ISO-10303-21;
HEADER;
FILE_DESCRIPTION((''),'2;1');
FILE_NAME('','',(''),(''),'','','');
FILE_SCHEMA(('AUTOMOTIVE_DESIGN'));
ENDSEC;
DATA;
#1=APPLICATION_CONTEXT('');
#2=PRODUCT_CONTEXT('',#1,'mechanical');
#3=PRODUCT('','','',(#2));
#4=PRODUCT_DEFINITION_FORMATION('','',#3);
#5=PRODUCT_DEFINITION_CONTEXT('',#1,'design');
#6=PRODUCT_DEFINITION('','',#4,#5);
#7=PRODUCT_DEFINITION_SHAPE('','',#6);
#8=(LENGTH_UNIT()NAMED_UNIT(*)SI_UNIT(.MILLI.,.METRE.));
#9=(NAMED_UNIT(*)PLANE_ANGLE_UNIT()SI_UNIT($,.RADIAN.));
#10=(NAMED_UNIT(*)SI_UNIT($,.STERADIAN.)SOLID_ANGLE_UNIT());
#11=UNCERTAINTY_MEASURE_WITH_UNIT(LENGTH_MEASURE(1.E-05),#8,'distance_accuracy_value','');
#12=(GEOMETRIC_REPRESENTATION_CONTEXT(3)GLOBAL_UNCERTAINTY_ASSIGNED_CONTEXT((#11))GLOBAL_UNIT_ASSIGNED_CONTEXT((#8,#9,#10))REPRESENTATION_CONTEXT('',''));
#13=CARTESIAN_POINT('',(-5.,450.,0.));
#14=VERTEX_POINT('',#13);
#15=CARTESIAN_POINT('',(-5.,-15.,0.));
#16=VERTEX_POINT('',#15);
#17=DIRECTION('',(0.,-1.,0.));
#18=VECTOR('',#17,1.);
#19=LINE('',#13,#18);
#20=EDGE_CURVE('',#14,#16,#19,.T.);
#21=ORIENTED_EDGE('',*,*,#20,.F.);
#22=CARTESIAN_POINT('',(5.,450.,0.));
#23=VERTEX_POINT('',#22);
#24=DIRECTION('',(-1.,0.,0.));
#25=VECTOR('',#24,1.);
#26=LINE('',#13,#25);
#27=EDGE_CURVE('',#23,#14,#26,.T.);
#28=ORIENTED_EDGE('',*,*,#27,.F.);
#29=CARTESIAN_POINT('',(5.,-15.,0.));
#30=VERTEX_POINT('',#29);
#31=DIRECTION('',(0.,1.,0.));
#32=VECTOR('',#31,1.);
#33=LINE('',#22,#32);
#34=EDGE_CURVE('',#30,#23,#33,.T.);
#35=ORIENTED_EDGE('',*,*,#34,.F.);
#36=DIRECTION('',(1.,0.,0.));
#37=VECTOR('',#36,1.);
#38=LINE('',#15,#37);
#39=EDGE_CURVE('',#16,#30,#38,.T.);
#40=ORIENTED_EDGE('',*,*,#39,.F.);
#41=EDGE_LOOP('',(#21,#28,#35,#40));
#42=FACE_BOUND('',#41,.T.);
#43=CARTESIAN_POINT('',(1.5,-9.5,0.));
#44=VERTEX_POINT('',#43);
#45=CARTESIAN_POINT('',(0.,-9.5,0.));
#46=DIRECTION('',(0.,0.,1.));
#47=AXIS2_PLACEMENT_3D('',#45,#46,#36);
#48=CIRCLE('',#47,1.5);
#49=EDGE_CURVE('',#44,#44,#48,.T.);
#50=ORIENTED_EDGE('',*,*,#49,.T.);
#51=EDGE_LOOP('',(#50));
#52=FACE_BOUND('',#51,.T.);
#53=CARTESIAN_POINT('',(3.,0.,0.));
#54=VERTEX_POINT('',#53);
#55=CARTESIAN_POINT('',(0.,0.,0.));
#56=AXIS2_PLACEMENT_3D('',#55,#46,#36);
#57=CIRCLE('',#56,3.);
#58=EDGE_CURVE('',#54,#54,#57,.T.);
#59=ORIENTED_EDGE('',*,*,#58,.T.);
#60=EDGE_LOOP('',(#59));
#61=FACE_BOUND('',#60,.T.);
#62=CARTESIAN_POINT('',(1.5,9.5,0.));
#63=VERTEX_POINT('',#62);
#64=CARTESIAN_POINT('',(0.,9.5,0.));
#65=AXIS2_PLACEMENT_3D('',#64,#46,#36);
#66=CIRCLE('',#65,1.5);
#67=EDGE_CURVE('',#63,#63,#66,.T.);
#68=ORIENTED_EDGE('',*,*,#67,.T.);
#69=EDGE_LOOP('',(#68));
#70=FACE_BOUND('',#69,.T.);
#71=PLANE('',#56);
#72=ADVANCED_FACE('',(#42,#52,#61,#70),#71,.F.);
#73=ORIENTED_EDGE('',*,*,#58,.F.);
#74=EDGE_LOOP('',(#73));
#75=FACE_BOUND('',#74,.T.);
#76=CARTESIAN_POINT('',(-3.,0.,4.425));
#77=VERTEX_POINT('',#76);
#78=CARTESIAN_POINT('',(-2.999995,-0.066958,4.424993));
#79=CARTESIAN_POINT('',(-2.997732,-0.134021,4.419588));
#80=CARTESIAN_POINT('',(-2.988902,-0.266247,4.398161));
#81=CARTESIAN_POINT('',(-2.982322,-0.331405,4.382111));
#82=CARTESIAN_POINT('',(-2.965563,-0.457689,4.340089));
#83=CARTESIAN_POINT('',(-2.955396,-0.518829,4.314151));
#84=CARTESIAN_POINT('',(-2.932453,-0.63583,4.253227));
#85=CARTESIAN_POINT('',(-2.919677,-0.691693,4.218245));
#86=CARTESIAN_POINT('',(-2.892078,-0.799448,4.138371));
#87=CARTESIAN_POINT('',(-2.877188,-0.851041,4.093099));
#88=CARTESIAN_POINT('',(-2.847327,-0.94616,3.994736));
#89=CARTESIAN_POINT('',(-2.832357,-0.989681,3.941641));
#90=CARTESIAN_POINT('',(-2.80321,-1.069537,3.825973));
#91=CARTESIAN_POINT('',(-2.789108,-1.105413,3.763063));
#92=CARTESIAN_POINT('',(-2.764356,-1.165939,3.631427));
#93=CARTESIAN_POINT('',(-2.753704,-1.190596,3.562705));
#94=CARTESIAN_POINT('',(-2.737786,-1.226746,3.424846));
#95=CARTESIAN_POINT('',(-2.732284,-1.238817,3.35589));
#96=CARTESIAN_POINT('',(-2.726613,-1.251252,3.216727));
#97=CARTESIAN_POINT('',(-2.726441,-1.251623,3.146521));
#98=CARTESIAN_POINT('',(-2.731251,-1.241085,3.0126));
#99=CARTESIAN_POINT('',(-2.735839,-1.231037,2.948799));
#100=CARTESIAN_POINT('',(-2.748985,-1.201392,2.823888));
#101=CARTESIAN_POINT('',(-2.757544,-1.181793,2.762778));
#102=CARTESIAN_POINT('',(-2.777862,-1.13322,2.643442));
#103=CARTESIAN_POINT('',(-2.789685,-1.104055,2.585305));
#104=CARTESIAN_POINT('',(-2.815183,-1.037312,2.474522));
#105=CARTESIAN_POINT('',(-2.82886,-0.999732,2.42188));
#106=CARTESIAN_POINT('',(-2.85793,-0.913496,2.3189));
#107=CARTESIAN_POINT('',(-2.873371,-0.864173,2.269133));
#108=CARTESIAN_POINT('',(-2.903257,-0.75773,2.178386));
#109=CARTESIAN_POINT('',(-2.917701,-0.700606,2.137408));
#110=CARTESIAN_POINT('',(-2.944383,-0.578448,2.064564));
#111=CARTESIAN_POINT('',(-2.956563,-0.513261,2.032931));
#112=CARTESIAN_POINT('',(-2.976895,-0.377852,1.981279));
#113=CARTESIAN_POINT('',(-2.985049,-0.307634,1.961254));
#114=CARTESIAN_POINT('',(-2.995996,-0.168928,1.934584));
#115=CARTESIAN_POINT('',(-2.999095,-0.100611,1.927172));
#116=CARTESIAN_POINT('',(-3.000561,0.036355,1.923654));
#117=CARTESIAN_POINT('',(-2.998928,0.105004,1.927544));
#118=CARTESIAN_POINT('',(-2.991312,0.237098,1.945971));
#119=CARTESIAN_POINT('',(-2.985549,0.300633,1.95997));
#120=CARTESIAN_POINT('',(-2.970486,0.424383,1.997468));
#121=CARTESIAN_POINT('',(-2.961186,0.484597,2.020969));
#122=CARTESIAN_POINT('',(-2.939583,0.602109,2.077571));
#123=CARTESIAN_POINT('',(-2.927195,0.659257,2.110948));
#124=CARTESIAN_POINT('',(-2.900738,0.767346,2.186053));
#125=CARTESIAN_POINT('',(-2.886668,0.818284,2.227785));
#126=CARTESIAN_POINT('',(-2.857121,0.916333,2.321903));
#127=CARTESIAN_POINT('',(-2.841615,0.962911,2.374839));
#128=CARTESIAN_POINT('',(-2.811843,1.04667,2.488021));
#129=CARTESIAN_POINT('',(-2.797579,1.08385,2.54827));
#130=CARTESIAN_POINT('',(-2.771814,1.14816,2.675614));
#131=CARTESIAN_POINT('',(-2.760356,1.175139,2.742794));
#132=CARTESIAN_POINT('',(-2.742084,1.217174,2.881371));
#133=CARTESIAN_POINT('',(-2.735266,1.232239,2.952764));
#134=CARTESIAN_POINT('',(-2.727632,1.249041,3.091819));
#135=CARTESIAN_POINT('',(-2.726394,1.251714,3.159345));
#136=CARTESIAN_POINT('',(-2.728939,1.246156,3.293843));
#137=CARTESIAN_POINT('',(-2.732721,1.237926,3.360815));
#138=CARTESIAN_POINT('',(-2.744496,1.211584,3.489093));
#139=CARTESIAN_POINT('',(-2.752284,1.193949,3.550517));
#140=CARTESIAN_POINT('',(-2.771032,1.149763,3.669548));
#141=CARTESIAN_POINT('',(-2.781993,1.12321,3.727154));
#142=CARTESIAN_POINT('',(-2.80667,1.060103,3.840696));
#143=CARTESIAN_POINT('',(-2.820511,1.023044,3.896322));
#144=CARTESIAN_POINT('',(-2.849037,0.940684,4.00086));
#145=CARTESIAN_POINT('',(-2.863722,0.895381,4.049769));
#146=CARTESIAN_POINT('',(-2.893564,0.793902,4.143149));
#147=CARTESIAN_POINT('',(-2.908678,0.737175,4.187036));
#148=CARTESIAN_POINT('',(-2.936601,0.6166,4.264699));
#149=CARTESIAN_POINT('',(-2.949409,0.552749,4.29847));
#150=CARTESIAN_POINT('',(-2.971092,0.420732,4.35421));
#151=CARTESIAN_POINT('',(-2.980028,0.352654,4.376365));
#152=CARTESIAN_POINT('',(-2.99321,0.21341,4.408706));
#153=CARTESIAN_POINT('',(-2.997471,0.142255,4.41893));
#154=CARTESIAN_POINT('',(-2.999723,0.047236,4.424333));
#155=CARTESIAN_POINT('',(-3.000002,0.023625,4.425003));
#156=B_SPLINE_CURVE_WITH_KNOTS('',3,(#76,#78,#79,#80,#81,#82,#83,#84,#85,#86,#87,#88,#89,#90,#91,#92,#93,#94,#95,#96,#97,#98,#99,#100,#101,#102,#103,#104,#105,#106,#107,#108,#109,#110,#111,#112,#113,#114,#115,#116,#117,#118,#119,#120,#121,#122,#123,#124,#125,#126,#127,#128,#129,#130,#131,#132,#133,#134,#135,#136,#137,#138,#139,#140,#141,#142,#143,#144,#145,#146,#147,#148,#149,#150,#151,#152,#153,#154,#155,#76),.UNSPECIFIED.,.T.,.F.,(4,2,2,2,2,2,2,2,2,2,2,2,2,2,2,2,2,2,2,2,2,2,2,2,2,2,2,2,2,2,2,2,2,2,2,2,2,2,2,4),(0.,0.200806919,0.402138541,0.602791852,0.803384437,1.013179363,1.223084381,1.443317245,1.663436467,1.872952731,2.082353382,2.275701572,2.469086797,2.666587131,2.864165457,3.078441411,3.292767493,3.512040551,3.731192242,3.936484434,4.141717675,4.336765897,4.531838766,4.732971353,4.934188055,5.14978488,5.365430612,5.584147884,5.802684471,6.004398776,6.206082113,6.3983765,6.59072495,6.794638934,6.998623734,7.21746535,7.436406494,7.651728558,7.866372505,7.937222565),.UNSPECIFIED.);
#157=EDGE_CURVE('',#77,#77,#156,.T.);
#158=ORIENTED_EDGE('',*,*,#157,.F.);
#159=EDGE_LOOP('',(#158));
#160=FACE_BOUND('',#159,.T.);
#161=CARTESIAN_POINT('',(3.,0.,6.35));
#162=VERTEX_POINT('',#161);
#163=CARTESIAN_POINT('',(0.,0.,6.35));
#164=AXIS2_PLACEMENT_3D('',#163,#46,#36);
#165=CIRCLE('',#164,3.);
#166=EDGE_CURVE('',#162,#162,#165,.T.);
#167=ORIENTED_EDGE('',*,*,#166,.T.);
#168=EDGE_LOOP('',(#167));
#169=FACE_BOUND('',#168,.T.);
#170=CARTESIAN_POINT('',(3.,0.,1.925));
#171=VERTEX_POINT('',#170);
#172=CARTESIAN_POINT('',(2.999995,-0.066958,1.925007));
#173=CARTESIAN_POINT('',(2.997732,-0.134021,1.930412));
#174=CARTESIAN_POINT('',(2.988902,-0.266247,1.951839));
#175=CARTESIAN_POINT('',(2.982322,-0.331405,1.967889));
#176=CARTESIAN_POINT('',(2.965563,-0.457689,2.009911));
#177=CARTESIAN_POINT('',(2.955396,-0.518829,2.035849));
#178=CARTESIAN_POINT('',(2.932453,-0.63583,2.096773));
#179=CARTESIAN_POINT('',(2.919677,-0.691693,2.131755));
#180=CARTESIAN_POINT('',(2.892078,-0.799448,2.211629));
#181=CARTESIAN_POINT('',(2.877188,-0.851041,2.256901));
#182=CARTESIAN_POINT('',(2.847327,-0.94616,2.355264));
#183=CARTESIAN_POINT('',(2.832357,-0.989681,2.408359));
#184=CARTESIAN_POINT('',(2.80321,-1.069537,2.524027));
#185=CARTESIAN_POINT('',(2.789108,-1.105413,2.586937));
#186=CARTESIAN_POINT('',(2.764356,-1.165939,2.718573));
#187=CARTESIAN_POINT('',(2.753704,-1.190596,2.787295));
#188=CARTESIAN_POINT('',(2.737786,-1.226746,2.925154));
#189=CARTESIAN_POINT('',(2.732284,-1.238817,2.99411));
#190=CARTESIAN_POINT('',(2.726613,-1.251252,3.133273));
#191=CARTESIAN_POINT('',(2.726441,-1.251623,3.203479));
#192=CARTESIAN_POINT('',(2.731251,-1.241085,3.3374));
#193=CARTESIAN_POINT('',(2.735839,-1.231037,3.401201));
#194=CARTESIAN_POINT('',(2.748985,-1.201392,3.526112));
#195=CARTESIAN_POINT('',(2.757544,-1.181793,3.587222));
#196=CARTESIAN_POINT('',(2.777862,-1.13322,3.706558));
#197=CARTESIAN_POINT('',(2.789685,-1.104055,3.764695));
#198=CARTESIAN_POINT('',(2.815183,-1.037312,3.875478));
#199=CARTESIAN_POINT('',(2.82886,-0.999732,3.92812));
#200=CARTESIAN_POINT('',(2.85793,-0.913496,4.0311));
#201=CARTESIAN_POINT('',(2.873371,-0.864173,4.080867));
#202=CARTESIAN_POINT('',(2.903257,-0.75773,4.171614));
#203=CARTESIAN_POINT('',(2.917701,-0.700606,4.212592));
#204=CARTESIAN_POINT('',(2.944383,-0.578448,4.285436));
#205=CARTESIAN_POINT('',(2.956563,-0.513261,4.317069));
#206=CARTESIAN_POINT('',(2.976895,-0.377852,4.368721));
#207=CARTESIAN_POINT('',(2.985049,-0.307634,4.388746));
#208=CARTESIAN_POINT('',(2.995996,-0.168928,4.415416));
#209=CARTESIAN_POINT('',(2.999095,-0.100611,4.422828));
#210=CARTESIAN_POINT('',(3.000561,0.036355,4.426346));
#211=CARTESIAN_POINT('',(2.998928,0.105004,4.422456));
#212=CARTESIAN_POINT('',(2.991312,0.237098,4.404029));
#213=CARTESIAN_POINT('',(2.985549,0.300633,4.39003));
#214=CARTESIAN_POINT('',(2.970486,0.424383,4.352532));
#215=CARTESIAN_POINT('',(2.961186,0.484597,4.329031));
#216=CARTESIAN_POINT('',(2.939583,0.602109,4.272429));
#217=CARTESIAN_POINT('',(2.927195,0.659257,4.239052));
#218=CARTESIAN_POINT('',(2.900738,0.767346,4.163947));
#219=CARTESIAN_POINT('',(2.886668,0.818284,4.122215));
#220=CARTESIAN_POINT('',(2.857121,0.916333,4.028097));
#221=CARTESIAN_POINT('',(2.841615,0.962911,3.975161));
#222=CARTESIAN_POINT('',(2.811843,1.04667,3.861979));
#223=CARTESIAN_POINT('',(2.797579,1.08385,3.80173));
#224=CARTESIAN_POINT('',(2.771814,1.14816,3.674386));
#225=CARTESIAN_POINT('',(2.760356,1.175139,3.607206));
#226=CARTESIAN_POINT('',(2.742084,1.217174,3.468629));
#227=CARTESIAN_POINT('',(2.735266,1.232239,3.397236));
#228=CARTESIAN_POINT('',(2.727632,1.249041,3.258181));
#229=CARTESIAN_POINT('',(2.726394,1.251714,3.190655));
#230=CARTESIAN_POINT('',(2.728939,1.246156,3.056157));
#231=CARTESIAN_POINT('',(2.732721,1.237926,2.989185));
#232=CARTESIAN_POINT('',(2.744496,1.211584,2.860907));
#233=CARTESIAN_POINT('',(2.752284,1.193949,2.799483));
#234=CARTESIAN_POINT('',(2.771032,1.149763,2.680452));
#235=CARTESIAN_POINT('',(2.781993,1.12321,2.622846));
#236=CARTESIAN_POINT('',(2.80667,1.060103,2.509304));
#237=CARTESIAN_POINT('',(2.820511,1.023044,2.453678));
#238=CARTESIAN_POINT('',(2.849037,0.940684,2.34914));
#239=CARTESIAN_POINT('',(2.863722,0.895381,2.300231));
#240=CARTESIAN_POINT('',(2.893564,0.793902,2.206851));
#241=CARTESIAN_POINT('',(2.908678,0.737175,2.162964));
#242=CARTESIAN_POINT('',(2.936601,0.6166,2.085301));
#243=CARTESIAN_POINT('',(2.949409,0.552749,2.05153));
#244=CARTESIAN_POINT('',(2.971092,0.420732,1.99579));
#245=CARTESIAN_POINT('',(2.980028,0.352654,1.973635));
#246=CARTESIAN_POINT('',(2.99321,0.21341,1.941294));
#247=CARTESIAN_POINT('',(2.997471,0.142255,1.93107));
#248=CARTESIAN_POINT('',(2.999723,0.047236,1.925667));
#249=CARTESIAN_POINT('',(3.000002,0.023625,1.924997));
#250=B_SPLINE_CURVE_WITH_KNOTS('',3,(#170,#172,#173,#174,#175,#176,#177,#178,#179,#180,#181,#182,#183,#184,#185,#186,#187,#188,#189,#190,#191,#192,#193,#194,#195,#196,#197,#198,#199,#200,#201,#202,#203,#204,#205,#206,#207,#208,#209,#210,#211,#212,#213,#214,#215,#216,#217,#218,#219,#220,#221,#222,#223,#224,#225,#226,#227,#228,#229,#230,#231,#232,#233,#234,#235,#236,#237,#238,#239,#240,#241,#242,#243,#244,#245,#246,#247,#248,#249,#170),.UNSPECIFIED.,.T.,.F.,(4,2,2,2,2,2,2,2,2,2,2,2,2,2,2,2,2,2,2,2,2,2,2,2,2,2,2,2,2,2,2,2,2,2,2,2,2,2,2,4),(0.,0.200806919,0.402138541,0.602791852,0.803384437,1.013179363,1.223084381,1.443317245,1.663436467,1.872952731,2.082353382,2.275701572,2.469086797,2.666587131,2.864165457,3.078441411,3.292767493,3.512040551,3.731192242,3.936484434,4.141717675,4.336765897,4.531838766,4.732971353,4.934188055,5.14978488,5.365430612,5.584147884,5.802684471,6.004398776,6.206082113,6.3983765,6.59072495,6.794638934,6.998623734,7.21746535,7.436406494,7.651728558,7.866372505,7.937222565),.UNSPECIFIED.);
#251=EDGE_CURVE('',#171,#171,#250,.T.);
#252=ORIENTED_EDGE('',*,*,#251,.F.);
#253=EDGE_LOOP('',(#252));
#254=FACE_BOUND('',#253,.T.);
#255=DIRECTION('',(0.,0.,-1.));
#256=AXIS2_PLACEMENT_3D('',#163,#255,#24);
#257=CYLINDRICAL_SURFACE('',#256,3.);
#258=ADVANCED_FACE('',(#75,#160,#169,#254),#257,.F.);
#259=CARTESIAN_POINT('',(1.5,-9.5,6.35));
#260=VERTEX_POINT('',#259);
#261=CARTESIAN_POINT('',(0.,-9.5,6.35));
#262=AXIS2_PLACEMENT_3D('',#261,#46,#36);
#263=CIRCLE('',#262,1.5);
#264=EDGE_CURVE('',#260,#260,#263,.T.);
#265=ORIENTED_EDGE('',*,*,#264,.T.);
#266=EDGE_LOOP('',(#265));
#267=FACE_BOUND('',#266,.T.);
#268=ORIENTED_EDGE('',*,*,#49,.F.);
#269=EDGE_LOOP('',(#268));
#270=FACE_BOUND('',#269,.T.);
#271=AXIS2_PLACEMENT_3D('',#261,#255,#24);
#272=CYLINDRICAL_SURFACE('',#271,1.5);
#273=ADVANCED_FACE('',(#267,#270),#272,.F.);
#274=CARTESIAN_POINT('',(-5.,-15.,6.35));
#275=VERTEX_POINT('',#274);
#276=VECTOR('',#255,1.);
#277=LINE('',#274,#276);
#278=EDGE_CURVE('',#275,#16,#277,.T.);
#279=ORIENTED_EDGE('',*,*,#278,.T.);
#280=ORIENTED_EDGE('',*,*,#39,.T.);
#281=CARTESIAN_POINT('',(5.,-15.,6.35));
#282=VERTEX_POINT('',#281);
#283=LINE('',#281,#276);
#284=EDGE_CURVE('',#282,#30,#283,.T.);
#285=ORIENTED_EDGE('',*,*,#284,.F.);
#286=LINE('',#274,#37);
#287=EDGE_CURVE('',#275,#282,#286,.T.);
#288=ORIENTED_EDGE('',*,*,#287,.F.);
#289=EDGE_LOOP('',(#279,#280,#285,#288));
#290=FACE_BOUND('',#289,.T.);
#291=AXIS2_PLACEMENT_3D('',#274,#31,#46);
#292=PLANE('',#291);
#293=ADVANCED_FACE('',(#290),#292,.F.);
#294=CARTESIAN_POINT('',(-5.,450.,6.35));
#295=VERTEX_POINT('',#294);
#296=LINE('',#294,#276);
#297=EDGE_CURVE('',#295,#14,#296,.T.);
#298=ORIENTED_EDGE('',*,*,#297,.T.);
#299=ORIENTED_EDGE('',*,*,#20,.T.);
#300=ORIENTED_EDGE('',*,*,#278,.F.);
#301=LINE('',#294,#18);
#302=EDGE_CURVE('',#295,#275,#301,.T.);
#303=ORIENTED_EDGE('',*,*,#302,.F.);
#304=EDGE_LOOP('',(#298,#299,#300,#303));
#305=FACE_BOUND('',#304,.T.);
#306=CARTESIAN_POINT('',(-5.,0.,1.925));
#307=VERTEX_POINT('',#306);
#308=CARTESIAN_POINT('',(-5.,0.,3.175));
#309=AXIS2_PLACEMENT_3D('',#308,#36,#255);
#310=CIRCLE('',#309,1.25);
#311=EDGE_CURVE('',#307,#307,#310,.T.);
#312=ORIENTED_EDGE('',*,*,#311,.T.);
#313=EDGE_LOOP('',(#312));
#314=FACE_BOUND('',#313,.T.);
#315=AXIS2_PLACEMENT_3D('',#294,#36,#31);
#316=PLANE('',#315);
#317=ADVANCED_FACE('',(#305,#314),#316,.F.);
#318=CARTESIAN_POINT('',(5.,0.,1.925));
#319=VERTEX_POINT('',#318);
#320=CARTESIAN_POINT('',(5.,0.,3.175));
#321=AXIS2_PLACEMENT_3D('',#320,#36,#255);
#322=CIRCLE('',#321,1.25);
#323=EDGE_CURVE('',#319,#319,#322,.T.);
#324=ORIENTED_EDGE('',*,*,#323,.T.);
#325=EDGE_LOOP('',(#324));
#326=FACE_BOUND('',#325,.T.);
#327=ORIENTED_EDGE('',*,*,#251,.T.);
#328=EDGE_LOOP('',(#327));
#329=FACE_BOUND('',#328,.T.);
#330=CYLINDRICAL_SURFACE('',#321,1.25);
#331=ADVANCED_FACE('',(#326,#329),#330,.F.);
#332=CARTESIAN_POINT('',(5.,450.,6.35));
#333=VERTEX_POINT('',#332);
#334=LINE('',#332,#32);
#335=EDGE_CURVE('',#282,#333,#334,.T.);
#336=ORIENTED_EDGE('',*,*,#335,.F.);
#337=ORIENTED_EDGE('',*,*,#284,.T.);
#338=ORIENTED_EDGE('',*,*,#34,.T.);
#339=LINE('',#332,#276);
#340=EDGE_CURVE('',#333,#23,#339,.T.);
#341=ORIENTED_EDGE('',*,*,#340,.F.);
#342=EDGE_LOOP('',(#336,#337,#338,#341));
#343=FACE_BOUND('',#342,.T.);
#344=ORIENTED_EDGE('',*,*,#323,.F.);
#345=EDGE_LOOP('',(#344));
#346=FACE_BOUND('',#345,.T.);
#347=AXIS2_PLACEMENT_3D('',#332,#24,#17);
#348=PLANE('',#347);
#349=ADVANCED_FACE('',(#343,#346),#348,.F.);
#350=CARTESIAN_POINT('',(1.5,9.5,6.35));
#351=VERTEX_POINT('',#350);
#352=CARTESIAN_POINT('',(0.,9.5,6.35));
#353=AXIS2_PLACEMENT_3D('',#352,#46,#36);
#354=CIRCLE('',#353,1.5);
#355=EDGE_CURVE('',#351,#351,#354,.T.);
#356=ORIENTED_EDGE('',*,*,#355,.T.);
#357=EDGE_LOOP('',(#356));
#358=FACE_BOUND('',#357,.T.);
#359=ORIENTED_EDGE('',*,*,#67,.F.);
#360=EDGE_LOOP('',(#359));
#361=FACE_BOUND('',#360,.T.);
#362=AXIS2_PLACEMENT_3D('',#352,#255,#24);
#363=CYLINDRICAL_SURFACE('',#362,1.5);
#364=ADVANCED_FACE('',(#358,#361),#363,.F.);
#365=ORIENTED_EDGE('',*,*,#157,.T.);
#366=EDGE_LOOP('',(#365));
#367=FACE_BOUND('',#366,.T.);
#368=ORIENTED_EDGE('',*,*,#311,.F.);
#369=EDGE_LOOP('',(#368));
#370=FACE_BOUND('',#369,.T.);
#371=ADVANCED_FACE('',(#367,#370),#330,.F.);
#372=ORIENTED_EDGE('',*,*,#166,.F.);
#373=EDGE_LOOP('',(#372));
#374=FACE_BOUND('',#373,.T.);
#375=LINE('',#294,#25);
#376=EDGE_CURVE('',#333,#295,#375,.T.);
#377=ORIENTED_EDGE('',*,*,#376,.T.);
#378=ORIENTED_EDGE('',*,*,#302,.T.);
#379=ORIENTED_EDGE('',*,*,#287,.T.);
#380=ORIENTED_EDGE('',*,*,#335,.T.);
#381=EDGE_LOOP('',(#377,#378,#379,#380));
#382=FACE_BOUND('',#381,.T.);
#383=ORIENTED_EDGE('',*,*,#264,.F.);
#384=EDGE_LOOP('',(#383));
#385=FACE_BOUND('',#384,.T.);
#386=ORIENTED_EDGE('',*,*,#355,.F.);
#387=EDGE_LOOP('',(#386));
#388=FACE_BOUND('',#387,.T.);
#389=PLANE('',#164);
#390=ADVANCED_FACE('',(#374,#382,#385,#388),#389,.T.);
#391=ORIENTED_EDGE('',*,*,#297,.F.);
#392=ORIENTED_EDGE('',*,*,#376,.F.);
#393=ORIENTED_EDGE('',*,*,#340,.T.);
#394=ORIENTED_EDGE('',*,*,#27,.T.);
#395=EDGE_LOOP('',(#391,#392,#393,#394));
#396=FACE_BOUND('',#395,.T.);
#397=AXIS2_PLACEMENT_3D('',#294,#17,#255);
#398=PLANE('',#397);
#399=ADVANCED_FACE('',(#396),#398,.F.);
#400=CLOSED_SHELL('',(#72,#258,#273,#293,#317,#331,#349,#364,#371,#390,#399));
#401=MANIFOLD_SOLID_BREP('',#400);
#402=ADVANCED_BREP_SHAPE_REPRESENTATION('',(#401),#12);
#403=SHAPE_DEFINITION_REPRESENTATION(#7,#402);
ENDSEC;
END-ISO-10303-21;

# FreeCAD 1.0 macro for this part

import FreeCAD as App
import Part
import Sketcher
Q = App.Units.Quantity

doc = App.newDocument("Part")
body = doc.addObject("PartDesign::Body", "Body")

sketch1 = doc.addObject("Sketcher::SketchObject", "Sketch")
body.addObject(sketch1)
sketch1.AttachmentSupport = (doc.XY_Plane, [""])
sketch1.MapMode = "FlatFace"
sketch1.addGeometry([
    Part.LineSegment(App.Vector(-5, 450, 0), App.Vector(-5, -15, 0)),
    Part.LineSegment(App.Vector(-5, -15, 0), App.Vector(5, -15, 0)),
    Part.LineSegment(App.Vector(5, -15, 0), App.Vector(5, 450, 0)),
    Part.LineSegment(App.Vector(5, 450, 0), App.Vector(-5, 450, 0)),
    Part.Circle(App.Vector(0, -9.5, 0), App.Vector(0, 0, 1), 1.5),
    Part.Circle(App.Vector(0, 0, 0), App.Vector(0, 0, 1), 3),
    Part.Circle(App.Vector(0, 9.5, 0), App.Vector(0, 0, 1), 1.5),
], False)
sketch1.addConstraint([
    Sketcher.Constraint("Coincident", 0, 2, 1, 1),
    Sketcher.Constraint("Coincident", 1, 2, 2, 1),
    Sketcher.Constraint("Coincident", 2, 2, 3, 1),
    Sketcher.Constraint("Coincident", 3, 2, 0, 1),
    Sketcher.Constraint("Vertical", 0),
    Sketcher.Constraint("Horizontal", 1),
    Sketcher.Constraint("Vertical", 2),
    Sketcher.Constraint("Horizontal", 3),
    Sketcher.Constraint("Coincident", 5, 3, -1, 1),
    Sketcher.Constraint("Equal", 4, 6),
    Sketcher.Constraint("Symmetric", 4, 3, 6, 3, -1, 1),
    Sketcher.Constraint("PointOnObject", 4, 3, -2),
    Sketcher.Constraint("Diameter", 4, Q("3 mm")),
    Sketcher.Constraint("Diameter", 5, Q("6 mm")),
    Sketcher.Constraint("DistanceX", 1, 1, 1, 2, Q("10 mm")),
    Sketcher.Constraint("DistanceY", 0, 2, 0, 1, Q("465 mm")),
    Sketcher.Constraint("DistanceX", 0, 2, -1, 1, Q("5 mm")),
    Sketcher.Constraint("DistanceY", 0, 2, -1, 1, Q("15 mm")),
    Sketcher.Constraint("DistanceY", 4, 3, 6, 3, Q("19 mm")),
])
pad1 = doc.addObject("PartDesign::Pad", "Pad")
body.addObject(pad1)
pad1.Profile = sketch1
pad1.Length = 6.35

sketch2 = doc.addObject("Sketcher::SketchObject", "Sketch001")
body.addObject(sketch2)
sketch2.AttachmentSupport = (doc.YZ_Plane, [""])
sketch2.MapMode = "FlatFace"
sketch2.AttachmentOffset = App.Placement(App.Vector(0, 0, 5), App.Rotation())
sketch2.addGeometry(Part.Circle(App.Vector(0, 3.2, 0), App.Vector(0, 0, 1), 1.2), False)
sketch2.addConstraint([
    Sketcher.Constraint("PointOnObject", 0, 3, -2),
    Sketcher.Constraint("Diameter", 0, Q("2.5 mm")),
    Sketcher.Constraint("DistanceY", -1, 1, 0, 3, Q("3.175 mm")),
])
doc.recompute()
hole = doc.addObject("PartDesign::Hole", "Hole")
body.addObject(hole)
hole.Profile = sketch2
hole.ThreadType = "None"
hole.Diameter = 2.5
hole.DepthType = "ThroughAll"

doc.recompute()
